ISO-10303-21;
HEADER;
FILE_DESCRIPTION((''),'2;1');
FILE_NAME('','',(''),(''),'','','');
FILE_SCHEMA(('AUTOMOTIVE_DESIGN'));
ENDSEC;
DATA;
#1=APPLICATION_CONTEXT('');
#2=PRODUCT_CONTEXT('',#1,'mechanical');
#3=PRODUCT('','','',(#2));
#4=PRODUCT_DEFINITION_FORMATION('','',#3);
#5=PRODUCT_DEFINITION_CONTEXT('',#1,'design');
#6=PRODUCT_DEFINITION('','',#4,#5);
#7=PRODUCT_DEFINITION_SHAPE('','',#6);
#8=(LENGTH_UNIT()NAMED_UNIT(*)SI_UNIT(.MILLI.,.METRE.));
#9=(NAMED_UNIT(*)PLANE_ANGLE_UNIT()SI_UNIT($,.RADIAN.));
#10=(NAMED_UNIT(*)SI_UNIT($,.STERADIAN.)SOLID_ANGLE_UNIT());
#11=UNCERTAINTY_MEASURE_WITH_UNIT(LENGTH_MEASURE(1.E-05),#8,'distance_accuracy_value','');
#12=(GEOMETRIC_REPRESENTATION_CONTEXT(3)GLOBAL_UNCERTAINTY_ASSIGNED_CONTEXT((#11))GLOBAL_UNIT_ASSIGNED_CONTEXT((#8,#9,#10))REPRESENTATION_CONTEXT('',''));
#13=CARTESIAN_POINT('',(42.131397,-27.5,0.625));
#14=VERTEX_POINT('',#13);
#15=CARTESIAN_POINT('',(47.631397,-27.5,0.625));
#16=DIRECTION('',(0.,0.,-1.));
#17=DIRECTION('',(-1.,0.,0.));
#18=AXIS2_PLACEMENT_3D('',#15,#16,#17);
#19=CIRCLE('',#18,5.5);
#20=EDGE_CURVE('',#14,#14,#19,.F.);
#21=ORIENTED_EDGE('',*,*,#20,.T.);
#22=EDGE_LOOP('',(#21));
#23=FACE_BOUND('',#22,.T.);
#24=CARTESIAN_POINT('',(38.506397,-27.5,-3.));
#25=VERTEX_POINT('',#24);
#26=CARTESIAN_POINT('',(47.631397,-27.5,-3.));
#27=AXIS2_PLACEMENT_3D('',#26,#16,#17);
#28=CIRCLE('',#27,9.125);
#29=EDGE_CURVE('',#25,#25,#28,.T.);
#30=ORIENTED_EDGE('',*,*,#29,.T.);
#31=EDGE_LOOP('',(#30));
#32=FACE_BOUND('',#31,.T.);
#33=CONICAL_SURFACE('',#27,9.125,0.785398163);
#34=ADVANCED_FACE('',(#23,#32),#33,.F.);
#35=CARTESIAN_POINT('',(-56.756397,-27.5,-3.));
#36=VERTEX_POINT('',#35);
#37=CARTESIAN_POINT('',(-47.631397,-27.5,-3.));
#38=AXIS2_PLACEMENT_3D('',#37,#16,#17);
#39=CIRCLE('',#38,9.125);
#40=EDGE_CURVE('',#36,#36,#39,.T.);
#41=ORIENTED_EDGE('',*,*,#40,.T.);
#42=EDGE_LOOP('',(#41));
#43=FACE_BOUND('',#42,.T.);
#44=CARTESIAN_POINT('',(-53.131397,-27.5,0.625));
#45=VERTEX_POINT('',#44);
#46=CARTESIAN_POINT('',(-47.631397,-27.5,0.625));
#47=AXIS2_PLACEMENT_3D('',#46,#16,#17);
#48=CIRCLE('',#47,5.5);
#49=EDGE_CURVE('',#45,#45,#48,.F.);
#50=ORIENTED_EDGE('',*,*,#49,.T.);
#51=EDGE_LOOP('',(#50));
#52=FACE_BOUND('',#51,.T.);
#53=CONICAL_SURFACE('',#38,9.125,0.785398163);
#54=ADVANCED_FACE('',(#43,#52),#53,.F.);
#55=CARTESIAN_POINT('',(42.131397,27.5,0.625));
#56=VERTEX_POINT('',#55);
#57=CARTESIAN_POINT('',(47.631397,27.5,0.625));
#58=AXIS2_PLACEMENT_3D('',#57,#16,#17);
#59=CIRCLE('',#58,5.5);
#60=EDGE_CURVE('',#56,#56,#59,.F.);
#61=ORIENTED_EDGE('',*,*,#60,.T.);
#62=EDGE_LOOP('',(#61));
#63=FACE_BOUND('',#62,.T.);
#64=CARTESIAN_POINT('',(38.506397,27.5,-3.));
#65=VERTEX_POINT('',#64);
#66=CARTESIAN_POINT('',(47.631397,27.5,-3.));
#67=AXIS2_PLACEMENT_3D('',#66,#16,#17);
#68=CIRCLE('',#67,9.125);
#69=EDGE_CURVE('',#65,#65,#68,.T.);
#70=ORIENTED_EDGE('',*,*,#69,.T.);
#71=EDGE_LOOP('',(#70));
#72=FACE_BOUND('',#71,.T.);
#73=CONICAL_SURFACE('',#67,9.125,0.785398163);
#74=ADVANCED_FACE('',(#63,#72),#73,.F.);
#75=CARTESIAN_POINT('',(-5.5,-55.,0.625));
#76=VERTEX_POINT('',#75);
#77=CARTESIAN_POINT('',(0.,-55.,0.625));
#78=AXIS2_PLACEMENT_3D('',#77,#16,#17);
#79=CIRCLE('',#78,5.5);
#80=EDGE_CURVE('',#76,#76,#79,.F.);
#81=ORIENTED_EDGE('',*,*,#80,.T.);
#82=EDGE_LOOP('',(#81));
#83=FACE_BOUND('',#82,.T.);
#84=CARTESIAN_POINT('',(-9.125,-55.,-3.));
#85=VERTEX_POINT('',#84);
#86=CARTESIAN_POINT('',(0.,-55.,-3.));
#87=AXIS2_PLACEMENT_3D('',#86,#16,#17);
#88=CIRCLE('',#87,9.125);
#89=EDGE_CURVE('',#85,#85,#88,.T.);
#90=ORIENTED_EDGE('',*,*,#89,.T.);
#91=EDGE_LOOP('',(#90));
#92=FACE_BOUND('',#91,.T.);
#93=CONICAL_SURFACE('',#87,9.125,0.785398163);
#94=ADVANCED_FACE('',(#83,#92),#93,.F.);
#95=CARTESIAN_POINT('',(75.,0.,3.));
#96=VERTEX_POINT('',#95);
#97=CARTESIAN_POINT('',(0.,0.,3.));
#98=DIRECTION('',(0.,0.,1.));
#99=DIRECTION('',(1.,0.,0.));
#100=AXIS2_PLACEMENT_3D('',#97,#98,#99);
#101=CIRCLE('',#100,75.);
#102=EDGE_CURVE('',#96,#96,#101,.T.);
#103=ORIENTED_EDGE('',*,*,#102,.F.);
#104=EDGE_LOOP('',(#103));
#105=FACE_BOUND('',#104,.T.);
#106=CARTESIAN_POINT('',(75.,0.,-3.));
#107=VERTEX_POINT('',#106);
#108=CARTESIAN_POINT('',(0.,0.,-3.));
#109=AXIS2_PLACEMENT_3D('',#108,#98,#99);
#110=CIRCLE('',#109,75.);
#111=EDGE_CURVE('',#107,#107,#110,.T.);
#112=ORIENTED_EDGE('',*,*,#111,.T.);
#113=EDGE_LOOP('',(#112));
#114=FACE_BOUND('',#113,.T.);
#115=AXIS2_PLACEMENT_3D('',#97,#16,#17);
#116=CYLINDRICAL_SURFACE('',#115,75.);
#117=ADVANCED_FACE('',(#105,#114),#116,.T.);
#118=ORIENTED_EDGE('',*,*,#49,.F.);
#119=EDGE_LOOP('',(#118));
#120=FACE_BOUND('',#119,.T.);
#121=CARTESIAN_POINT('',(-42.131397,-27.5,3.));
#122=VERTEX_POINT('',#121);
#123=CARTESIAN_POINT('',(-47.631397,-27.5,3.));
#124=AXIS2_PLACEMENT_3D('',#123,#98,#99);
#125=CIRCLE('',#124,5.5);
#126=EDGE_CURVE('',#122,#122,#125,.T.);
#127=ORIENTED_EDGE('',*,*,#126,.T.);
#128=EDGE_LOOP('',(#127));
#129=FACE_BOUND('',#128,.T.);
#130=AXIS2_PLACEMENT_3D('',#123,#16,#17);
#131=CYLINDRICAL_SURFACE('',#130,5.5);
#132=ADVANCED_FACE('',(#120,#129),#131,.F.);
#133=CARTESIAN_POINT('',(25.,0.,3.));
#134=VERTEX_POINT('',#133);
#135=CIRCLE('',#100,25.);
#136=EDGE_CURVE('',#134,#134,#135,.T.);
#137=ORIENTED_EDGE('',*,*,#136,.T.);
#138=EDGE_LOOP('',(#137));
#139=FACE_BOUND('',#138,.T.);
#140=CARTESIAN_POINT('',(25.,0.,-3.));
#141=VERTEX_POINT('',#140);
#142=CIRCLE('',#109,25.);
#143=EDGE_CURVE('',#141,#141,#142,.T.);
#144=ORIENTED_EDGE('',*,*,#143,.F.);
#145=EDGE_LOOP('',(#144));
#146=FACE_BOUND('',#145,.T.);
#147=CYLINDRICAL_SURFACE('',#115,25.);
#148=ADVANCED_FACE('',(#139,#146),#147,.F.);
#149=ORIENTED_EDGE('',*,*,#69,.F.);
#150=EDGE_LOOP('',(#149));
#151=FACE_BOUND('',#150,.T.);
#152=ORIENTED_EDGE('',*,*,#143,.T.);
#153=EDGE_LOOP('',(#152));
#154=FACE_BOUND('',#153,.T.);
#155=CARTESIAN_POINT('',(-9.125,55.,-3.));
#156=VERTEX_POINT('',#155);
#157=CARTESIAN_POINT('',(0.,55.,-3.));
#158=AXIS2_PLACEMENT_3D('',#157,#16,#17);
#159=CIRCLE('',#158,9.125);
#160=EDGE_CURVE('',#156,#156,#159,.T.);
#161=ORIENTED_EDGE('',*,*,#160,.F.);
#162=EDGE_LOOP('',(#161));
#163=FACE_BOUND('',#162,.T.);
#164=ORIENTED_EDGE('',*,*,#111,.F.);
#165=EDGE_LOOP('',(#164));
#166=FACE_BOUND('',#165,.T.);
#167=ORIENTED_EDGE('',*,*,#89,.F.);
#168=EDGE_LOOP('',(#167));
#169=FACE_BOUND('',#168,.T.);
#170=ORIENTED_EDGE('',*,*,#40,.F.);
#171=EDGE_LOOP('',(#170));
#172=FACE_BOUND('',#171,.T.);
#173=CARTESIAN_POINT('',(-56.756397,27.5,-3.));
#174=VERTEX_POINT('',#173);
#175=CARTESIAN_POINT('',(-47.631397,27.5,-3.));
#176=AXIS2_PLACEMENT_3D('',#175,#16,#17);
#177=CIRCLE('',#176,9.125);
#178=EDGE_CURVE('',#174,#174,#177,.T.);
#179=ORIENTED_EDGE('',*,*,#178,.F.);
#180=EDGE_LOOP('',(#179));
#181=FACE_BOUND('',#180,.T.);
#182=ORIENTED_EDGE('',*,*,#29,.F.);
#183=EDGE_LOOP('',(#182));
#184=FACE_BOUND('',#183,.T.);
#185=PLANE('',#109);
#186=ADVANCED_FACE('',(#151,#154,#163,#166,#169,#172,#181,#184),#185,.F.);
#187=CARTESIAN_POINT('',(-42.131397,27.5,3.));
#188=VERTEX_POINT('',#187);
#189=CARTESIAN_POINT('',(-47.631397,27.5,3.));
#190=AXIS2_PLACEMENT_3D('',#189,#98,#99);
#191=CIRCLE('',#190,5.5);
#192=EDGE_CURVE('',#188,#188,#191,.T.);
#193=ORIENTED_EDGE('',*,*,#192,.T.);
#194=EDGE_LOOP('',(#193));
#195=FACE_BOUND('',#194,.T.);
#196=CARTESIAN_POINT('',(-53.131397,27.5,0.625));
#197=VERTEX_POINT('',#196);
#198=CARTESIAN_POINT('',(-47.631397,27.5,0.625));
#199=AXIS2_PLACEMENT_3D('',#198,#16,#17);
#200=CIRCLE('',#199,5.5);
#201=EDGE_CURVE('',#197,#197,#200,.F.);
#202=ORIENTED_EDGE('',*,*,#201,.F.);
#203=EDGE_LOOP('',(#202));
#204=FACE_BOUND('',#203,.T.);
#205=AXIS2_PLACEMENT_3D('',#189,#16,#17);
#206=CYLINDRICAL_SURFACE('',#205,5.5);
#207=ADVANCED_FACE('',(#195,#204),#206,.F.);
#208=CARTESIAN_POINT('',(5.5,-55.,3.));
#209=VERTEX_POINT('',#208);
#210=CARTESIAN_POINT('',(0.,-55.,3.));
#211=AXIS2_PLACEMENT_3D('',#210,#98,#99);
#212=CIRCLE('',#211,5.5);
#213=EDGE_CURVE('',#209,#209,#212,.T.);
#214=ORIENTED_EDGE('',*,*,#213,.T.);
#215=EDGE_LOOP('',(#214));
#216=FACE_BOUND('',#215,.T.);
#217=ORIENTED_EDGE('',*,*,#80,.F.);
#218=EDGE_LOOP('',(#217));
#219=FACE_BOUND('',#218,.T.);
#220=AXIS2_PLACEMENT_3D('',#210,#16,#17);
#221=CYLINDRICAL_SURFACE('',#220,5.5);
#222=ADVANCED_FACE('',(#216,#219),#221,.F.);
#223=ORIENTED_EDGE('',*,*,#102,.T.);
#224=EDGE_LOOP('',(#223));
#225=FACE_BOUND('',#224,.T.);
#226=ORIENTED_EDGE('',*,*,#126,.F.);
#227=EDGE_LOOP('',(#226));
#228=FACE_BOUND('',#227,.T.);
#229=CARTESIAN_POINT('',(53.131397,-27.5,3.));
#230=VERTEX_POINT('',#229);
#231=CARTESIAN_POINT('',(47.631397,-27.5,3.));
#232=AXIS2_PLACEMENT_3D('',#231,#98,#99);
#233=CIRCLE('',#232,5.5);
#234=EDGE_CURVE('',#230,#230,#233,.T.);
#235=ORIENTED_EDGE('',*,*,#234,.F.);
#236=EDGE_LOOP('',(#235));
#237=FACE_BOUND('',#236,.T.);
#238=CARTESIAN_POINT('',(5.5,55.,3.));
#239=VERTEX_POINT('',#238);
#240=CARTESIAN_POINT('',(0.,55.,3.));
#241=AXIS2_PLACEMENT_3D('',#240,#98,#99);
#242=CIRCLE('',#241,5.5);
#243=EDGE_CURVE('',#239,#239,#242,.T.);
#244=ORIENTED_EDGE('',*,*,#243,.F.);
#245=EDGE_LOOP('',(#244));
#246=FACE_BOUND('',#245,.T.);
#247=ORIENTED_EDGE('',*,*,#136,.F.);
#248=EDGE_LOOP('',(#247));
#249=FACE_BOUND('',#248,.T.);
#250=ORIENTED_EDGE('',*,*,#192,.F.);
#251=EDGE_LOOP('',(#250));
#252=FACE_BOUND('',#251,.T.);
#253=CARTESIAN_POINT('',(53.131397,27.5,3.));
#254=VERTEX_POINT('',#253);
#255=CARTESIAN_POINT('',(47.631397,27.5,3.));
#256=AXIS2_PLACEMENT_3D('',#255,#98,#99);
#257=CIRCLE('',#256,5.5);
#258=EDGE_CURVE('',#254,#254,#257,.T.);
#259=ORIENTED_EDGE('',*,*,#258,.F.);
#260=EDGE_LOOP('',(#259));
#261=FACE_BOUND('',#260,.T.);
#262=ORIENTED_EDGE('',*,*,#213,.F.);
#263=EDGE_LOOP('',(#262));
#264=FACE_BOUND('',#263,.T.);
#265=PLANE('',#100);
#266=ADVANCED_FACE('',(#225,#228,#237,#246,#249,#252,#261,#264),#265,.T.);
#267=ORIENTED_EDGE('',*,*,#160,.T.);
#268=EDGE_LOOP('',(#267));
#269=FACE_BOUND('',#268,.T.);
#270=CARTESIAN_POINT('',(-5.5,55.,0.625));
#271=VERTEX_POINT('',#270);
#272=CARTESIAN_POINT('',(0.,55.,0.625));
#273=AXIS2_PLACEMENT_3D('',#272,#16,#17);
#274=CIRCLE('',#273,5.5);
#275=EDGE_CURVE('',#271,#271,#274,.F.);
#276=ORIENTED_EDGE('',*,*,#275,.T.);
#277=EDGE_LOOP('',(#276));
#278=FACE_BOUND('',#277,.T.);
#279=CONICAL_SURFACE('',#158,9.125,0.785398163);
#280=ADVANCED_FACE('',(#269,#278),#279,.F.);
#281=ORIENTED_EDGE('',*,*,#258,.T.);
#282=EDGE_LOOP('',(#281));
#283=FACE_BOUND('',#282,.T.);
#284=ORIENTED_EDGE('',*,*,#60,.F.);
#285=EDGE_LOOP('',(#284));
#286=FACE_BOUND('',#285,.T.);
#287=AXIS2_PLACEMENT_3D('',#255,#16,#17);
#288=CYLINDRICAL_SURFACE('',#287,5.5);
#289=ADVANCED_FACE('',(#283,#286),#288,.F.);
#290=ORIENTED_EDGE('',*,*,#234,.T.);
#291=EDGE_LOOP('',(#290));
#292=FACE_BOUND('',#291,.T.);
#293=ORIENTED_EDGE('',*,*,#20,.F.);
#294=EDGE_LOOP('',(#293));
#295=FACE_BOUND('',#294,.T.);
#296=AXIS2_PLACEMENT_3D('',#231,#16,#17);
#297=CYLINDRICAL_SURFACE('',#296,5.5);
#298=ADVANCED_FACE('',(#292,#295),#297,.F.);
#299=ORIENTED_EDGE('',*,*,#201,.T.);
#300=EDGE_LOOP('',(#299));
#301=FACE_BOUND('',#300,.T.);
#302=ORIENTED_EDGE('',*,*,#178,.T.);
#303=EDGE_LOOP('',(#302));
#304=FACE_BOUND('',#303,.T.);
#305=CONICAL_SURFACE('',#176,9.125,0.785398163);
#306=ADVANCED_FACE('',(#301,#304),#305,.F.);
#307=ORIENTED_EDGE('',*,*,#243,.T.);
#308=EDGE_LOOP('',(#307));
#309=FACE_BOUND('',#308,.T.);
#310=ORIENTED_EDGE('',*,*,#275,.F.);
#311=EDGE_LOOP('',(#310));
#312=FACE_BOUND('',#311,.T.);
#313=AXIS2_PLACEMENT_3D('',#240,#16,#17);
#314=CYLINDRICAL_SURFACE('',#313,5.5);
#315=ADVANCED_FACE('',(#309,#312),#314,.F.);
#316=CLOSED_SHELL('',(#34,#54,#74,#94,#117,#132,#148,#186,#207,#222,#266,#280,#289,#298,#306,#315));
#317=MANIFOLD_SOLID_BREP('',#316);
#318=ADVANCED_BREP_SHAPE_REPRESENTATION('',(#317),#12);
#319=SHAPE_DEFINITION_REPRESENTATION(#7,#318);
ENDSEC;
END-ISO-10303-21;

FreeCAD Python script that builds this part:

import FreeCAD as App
import Part
import Sketcher
Q = App.Units.Quantity

doc = App.newDocument("Part")
body = doc.addObject("PartDesign::Body", "Body")

# Sketch on XY plane
sketch1 = body.newObject("Sketcher::SketchObject", "Sketch")
sketch1.AttachmentSupport = (doc.getObject("XY_Plane"), [""])
sketch1.MapMode = "FlatFace"
sketch1.addGeometry([
    Part.Circle(App.Vector(0, 0, 0), App.Vector(0, 0, 1), 75),  # 0
    Part.Circle(App.Vector(-48, -28, 0), App.Vector(0, 0, 1), 6),  # 1
    Part.Circle(App.Vector(0, -55, 0), App.Vector(0, 0, 1), 6),  # 2
    Part.Circle(App.Vector(48, -28, 0), App.Vector(0, 0, 1), 6),  # 3
    Part.Circle(App.Vector(-48, 28, 0), App.Vector(0, 0, 1), 6),  # 4
    Part.Circle(App.Vector(0, 0, 0), App.Vector(0, 0, 1), 25),  # 5
    Part.Circle(App.Vector(48, 28, 0), App.Vector(0, 0, 1), 6),  # 6
    Part.Circle(App.Vector(0, 55, 0), App.Vector(0, 0, 1), 6),  # 7
], False)
sketch1.addConstraint([
    Sketcher.Constraint("Coincident", 0, 3, -1, 1),
    Sketcher.Constraint("Coincident", 5, 3, -1, 1),
    Sketcher.Constraint("Equal", 1, 2),
    Sketcher.Constraint("Equal", 2, 3),
    Sketcher.Constraint("Equal", 3, 4),
    Sketcher.Constraint("Equal", 4, 6),
    Sketcher.Constraint("Equal", 6, 7),
    Sketcher.Constraint("Symmetric", 3, 3, 4, 3, -1, 1),
    Sketcher.Constraint("Symmetric", 1, 3, 6, 3, -1, 1),
    Sketcher.Constraint("Symmetric", 2, 3, 7, 3, -1, 1),
    Sketcher.Constraint("Symmetric", 1, 3, 3, 3, -2),
    Sketcher.Constraint("PointOnObject", 2, 3, -2),
    Sketcher.Constraint("Diameter", 0, Q("150 mm")),
    Sketcher.Constraint("Diameter", 1, Q("11 mm")),
    Sketcher.Constraint("Diameter", 5, Q("50 mm")),
    Sketcher.Constraint("DistanceY", 2, 3, -1, 1, Q("55 mm")),
    Sketcher.Constraint("DistanceY", 1, 3, 4, 3, Q("55 mm")),
    Sketcher.Constraint("DistanceX", 1, 3, -1, 1, Q("47.631397 mm")),
])
pad1 = body.newObject("PartDesign::Pad", "Pad")
pad1.Profile = sketch1
pad1.Length = 6
pad1.Midplane = True

# Sketch on XY plane
sketch2 = body.newObject("Sketcher::SketchObject", "Sketch001")
sketch2.AttachmentSupport = (doc.getObject("XY_Plane"), [""])
sketch2.MapMode = "FlatFace"
sketch2.AttachmentOffset = App.Placement(App.Vector(0, 0, -3), App.Rotation())
sketch2.addGeometry([
    Part.Circle(App.Vector(0, 55, 0), App.Vector(0, 0, 1), 4.5),  # 0
    Part.Circle(App.Vector(-47.6, 27.5, 0), App.Vector(0, 0, 1), 4.5),  # 1
    Part.Circle(App.Vector(-47.6, -27.5, 0), App.Vector(0, 0, 1), 4.5),  # 2
    Part.Circle(App.Vector(0, -55, 0), App.Vector(0, 0, 1), 4.5),  # 3
    Part.Circle(App.Vector(47.6, -27.5, 0), App.Vector(0, 0, 1), 4.5),  # 4
    Part.Circle(App.Vector(47.6, 27.5, 0), App.Vector(0, 0, 1), 4.5),  # 5
], False)
sketch2.addConstraint([
    Sketcher.Constraint("Equal", 0, 1),
    Sketcher.Constraint("Equal", 1, 2),
    Sketcher.Constraint("Equal", 2, 3),
    Sketcher.Constraint("Equal", 3, 4),
    Sketcher.Constraint("Equal", 4, 5),
    Sketcher.Constraint("Symmetric", 0, 3, 3, 3, -1, 1),
    Sketcher.Constraint("Symmetric", 1, 3, 4, 3, -1, 1),
    Sketcher.Constraint("Symmetric", 2, 3, 5, 3, -1, 1),
    Sketcher.Constraint("Symmetric", 2, 3, 4, 3, -2),
    Sketcher.Constraint("PointOnObject", 0, 3, -2),
    Sketcher.Constraint("Diameter", 0, Q("9 mm")),
    Sketcher.Constraint("DistanceY", -1, 1, 0, 3, Q("55 mm")),
    Sketcher.Constraint("DistanceY", 2, 3, 1, 3, Q("55 mm")),
    Sketcher.Constraint("DistanceX", 1, 3, -1, 1, Q("47.631397 mm")),
])
doc.recompute()
hole = body.newObject("PartDesign::Hole", "Hole")
hole.Profile = sketch2
hole.ThreadType = "None"
hole.Diameter = 9
hole.DepthType = "Dimension"
hole.Depth = 17
hole.DrillPoint = "Angled"
hole.DrillPointAngle = 118
hole.HoleCutType = "Countersink"
hole.HoleCutDiameter = 18.25
hole.HoleCutCountersinkAngle = 90
hole.Reversed = True

doc.recompute()
